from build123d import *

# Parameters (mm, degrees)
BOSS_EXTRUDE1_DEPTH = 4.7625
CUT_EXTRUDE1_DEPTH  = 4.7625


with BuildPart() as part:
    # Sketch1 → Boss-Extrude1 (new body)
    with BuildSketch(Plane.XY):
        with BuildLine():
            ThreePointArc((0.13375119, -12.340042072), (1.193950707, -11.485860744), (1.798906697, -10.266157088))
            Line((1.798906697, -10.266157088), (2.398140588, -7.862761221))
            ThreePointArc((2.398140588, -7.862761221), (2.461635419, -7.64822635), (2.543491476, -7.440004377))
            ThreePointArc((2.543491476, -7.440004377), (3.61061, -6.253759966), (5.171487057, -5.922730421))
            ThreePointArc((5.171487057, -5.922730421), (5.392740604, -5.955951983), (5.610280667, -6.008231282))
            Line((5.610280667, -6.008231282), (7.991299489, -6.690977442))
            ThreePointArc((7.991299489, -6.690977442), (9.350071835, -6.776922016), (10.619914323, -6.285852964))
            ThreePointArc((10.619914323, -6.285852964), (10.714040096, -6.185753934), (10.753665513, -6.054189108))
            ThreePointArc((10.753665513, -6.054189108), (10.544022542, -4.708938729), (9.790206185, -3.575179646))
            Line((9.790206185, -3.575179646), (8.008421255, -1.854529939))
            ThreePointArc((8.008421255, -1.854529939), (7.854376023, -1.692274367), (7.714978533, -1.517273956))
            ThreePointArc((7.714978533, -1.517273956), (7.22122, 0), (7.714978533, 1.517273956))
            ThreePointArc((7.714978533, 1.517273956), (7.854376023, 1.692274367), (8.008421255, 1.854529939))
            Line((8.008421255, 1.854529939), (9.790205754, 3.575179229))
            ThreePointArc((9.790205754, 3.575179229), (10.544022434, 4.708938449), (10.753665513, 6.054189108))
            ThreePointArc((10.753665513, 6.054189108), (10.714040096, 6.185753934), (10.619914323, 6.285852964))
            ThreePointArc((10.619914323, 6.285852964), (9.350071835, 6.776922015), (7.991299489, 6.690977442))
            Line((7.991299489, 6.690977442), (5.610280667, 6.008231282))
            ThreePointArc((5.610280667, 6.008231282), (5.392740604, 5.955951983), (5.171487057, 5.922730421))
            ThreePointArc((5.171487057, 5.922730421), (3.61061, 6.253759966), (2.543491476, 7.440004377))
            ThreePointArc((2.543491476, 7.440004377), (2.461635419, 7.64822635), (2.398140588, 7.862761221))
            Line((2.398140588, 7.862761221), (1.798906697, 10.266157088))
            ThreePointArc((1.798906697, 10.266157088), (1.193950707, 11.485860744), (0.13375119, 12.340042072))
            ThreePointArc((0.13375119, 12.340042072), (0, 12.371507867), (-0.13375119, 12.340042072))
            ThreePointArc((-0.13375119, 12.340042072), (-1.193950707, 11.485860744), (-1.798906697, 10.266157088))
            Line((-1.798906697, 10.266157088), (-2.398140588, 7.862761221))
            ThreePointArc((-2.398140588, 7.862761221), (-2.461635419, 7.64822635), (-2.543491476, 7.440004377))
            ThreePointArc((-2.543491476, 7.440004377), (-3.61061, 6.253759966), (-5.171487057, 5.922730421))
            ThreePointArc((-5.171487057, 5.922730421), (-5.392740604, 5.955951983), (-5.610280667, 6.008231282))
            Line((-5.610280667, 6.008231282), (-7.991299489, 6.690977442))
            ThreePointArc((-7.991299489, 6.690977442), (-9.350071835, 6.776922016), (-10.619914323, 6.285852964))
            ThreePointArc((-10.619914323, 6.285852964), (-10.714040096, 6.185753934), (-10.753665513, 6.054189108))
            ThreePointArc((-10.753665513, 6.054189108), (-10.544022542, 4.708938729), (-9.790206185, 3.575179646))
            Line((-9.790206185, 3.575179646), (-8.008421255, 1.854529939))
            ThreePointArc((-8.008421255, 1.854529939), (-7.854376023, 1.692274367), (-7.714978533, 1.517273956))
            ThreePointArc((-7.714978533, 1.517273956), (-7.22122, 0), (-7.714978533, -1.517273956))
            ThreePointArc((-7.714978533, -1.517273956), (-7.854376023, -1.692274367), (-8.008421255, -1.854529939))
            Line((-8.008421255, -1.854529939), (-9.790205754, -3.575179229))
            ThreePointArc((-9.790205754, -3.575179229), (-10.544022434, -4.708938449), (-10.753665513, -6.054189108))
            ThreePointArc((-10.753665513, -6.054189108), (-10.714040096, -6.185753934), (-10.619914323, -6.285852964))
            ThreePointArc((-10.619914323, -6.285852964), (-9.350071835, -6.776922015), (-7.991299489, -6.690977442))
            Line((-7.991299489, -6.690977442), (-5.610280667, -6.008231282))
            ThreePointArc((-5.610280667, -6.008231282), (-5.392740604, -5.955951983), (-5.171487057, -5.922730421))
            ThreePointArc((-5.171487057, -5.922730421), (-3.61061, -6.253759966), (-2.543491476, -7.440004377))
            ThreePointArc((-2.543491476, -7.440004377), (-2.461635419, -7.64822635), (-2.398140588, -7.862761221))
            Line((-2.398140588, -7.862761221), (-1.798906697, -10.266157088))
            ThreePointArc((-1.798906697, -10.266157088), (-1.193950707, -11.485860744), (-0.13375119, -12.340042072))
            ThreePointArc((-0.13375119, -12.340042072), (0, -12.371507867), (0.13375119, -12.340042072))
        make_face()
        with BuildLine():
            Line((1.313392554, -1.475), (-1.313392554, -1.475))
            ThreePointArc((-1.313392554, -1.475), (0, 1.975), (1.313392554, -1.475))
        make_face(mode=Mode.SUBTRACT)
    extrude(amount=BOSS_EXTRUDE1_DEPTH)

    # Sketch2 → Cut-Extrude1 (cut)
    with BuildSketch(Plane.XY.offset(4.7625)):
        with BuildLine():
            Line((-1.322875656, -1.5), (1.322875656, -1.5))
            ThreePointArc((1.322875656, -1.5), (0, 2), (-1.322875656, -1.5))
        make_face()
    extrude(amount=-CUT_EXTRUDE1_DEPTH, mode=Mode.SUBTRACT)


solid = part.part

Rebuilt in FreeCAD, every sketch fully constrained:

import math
import FreeCAD as App
import Part
import Sketcher
Q = App.Units.Quantity

doc = App.newDocument("Part")
body = doc.addObject("PartDesign::Body", "Body")

# Sketch on XY plane
sketch1 = body.newObject("Sketcher::SketchObject", "Sketch")
sketch1.AttachmentSupport = (doc.getObject("XY_Plane"), [""])
sketch1.MapMode = "FlatFace"
sketch1.addGeometry([
    Part.ArcOfCircle(Part.Circle(App.Vector(-1.28, -9.5, 0), App.Vector(0, 0, 1), 3.18), math.radians(-64), math.radians(-14)),  # 0
    Part.LineSegment(App.Vector(1.8, -10.27, 0), App.Vector(2.4, -7.86, 0)),  # 1
    Part.ArcOfCircle(Part.Circle(App.Vector(4.9, -8.49, 0), App.Vector(0, 0, 1), 2.58), math.radians(156.05), math.radians(166)),  # 2
    Part.ArcOfCircle(Part.Circle(App.Vector(4.9, -8.49, 0), App.Vector(0, 0, 1), 2.58), math.radians(84), math.radians(156)),  # 3
    Part.ArcOfCircle(Part.Circle(App.Vector(4.9, -8.49, 0), App.Vector(0, 0, 1), 2.58), math.radians(74), math.radians(83.95)),  # 4
    Part.LineSegment(App.Vector(5.61, -6.01, 0), App.Vector(7.99, -6.69, 0)),  # 5
    Part.ArcOfCircle(Part.Circle(App.Vector(8.87, -3.64, 0), App.Vector(0, 0, 1), 3.17), math.radians(-106), math.radians(-56)),  # 6
    Part.ArcOfCircle(Part.Circle(App.Vector(10.45, -6.04, 0), App.Vector(0, 0, 1), 0.3), math.radians(-56), math.radians(-4)),  # 7
    Part.ArcOfCircle(Part.Circle(App.Vector(7.58, -5.86, 0), App.Vector(0, 0, 1), 3.18), math.radians(-4), math.radians(46)),  # 8
    Part.LineSegment(App.Vector(9.79, -3.58, 0), App.Vector(8.01, -1.85, 0)),  # 9
    Part.ArcOfCircle(Part.Circle(App.Vector(9.8, 0, 0), App.Vector(0, 0, 1), 2.58), math.radians(-143.95), math.radians(-134)),  # 10
    Part.ArcOfCircle(Part.Circle(App.Vector(9.8, 0, 0), App.Vector(0, 0, 1), 2.58), math.radians(144), math.radians(216)),  # 11
    Part.ArcOfCircle(Part.Circle(App.Vector(9.8, 0, 0), App.Vector(0, 0, 1), 2.58), math.radians(134), math.radians(143.95)),  # 12
    Part.LineSegment(App.Vector(8.01, 1.85, 0), App.Vector(9.79, 3.58, 0)),  # 13
    Part.ArcOfCircle(Part.Circle(App.Vector(7.58, 5.86, 0), App.Vector(0, 0, 1), 3.17), math.radians(-46), math.radians(4)),  # 14
    Part.ArcOfCircle(Part.Circle(App.Vector(10.45, 6.04, 0), App.Vector(0, 0, 1), 0.3), math.radians(4), math.radians(56)),  # 15
    Part.ArcOfCircle(Part.Circle(App.Vector(8.87, 3.64, 0), App.Vector(0, 0, 1), 3.18), math.radians(56), math.radians(106)),  # 16
    Part.LineSegment(App.Vector(7.99, 6.69, 0), App.Vector(5.61, 6.01, 0)),  # 17
    Part.ArcOfCircle(Part.Circle(App.Vector(4.9, 8.49, 0), App.Vector(0, 0, 1), 2.58), math.radians(-83.95), math.radians(-74)),  # 18
    Part.ArcOfCircle(Part.Circle(App.Vector(4.9, 8.49, 0), App.Vector(0, 0, 1), 2.58), math.radians(-156), math.radians(-84)),  # 19
    Part.ArcOfCircle(Part.Circle(App.Vector(4.9, 8.49, 0), App.Vector(0, 0, 1), 2.58), math.radians(-166), math.radians(-156.05)),  # 20
    Part.LineSegment(App.Vector(2.4, 7.86, 0), App.Vector(1.8, 10.27, 0)),  # 21
    Part.ArcOfCircle(Part.Circle(App.Vector(-1.28, 9.5, 0), App.Vector(0, 0, 1), 3.18), math.radians(14), math.radians(64)),  # 22
    Part.ArcOfCircle(Part.Circle(App.Vector(0, 12.07, 0), App.Vector(0, 0, 1), 0.3), math.radians(64), math.radians(116)),  # 23
    Part.ArcOfCircle(Part.Circle(App.Vector(1.28, 9.5, 0), App.Vector(0, 0, 1), 3.18), math.radians(116), math.radians(166)),  # 24
    Part.LineSegment(App.Vector(-1.8, 10.27, 0), App.Vector(-2.4, 7.86, 0)),  # 25
    Part.ArcOfCircle(Part.Circle(App.Vector(-4.9, 8.49, 0), App.Vector(0, 0, 1), 2.58), math.radians(-23.95), math.radians(-14)),  # 26
    Part.ArcOfCircle(Part.Circle(App.Vector(-4.9, 8.49, 0), App.Vector(0, 0, 1), 2.58), math.radians(-96), math.radians(-24)),  # 27
    Part.ArcOfCircle(Part.Circle(App.Vector(-4.9, 8.49, 0), App.Vector(0, 0, 1), 2.58), math.radians(-106), math.radians(-96.05)),  # 28
    Part.LineSegment(App.Vector(-5.61, 6.01, 0), App.Vector(-7.99, 6.69, 0)),  # 29
    Part.ArcOfCircle(Part.Circle(App.Vector(-8.87, 3.64, 0), App.Vector(0, 0, 1), 3.17), math.radians(74), math.radians(124)),  # 30
    Part.ArcOfCircle(Part.Circle(App.Vector(-10.45, 6.04, 0), App.Vector(0, 0, 1), 0.3), math.radians(124), math.radians(176)),  # 31
    Part.ArcOfCircle(Part.Circle(App.Vector(-7.58, 5.86, 0), App.Vector(0, 0, 1), 3.18), math.radians(176), math.radians(226)),  # 32
    Part.LineSegment(App.Vector(-9.79, 3.58, 0), App.Vector(-8.01, 1.85, 0)),  # 33
    Part.ArcOfCircle(Part.Circle(App.Vector(-9.8, 0, 0), App.Vector(0, 0, 1), 2.58), math.radians(36.05), math.radians(46)),  # 34
    Part.ArcOfCircle(Part.Circle(App.Vector(-9.8, 0, 0), App.Vector(0, 0, 1), 2.58), math.radians(-36), math.radians(36)),  # 35
    Part.ArcOfCircle(Part.Circle(App.Vector(-9.8, 0, 0), App.Vector(0, 0, 1), 2.58), math.radians(-46), math.radians(-36.05)),  # 36
    Part.LineSegment(App.Vector(-8.01, -1.85, 0), App.Vector(-9.79, -3.58, 0)),  # 37
    Part.ArcOfCircle(Part.Circle(App.Vector(-7.58, -5.86, 0), App.Vector(0, 0, 1), 3.17), math.radians(134), math.radians(184)),  # 38
    Part.ArcOfCircle(Part.Circle(App.Vector(-10.45, -6.04, 0), App.Vector(0, 0, 1), 0.3), math.radians(-176), math.radians(-124)),  # 39
    Part.ArcOfCircle(Part.Circle(App.Vector(-8.87, -3.64, 0), App.Vector(0, 0, 1), 3.18), math.radians(-124), math.radians(-74)),  # 40
    Part.LineSegment(App.Vector(-7.99, -6.69, 0), App.Vector(-5.61, -6.01, 0)),  # 41
    Part.ArcOfCircle(Part.Circle(App.Vector(-4.9, -8.49, 0), App.Vector(0, 0, 1), 2.58), math.radians(96.05), math.radians(106)),  # 42
    Part.ArcOfCircle(Part.Circle(App.Vector(-4.9, -8.49, 0), App.Vector(0, 0, 1), 2.58), math.radians(24), math.radians(96)),  # 43
    Part.ArcOfCircle(Part.Circle(App.Vector(-4.9, -8.49, 0), App.Vector(0, 0, 1), 2.58), math.radians(14), math.radians(23.95)),  # 44
    Part.LineSegment(App.Vector(-2.4, -7.86, 0), App.Vector(-1.8, -10.27, 0)),  # 45
    Part.ArcOfCircle(Part.Circle(App.Vector(1.28, -9.5, 0), App.Vector(0, 0, 1), 3.18), math.radians(-166), math.radians(-116)),  # 46
    Part.ArcOfCircle(Part.Circle(App.Vector(0, -12.07, 0), App.Vector(0, 0, 1), 0.3), math.radians(-116), math.radians(-64)),  # 47
    Part.ArcOfCircle(Part.Circle(App.Vector(0, 0, 0), App.Vector(0, 0, 1), 1.98), math.radians(-48), math.radians(228)),  # 48
    Part.LineSegment(App.Vector(1.31, -1.48, 0), App.Vector(-1.31, -1.48, 0)),  # 49
], False)
sketch1.addConstraint([
    Sketcher.Constraint("Tangent", 0, 2, 1, 1),
    Sketcher.Constraint("Tangent", 1, 2, 2, 2),
    Sketcher.Constraint("Tangent", 2, 1, 3, 2),
    Sketcher.Constraint("Tangent", 3, 1, 4, 2),
    Sketcher.Constraint("Tangent", 4, 1, 5, 1),
    Sketcher.Constraint("Tangent", 5, 2, 6, 1),
    Sketcher.Constraint("Tangent", 6, 2, 7, 1),
    Sketcher.Constraint("Tangent", 7, 2, 8, 1),
    Sketcher.Constraint("Tangent", 8, 2, 9, 1),
    Sketcher.Constraint("Tangent", 9, 2, 10, 2),
    Sketcher.Constraint("Tangent", 10, 1, 11, 2),
    Sketcher.Constraint("Tangent", 11, 1, 12, 2),
    Sketcher.Constraint("Tangent", 12, 1, 13, 1),
    Sketcher.Constraint("Tangent", 13, 2, 14, 1),
    Sketcher.Constraint("Tangent", 14, 2, 15, 1),
    Sketcher.Constraint("Tangent", 15, 2, 16, 1),
    Sketcher.Constraint("Tangent", 16, 2, 17, 1),
    Sketcher.Constraint("Tangent", 17, 2, 18, 2),
    Sketcher.Constraint("Tangent", 18, 1, 19, 2),
    Sketcher.Constraint("Tangent", 19, 1, 20, 2),
    Sketcher.Constraint("Tangent", 20, 1, 21, 1),
    Sketcher.Constraint("Tangent", 21, 2, 22, 1),
    Sketcher.Constraint("Tangent", 22, 2, 23, 1),
    Sketcher.Constraint("Tangent", 23, 2, 24, 1),
    Sketcher.Constraint("Tangent", 24, 2, 25, 1),
    Sketcher.Constraint("Tangent", 25, 2, 26, 2),
    Sketcher.Constraint("Tangent", 26, 1, 27, 2),
    Sketcher.Constraint("Tangent", 27, 1, 28, 2),
    Sketcher.Constraint("Tangent", 28, 1, 29, 1),
    Sketcher.Constraint("Tangent", 29, 2, 30, 1),
    Sketcher.Constraint("Tangent", 30, 2, 31, 1),
    Sketcher.Constraint("Tangent", 31, 2, 32, 1),
    Sketcher.Constraint("Tangent", 32, 2, 33, 1),
    Sketcher.Constraint("Tangent", 33, 2, 34, 2),
    Sketcher.Constraint("Tangent", 34, 1, 35, 2),
    Sketcher.Constraint("Tangent", 35, 1, 36, 2),
    Sketcher.Constraint("Tangent", 36, 1, 37, 1),
    Sketcher.Constraint("Tangent", 37, 2, 38, 1),
    Sketcher.Constraint("Tangent", 38, 2, 39, 1),
    Sketcher.Constraint("Tangent", 39, 2, 40, 1),
    Sketcher.Constraint("Tangent", 40, 2, 41, 1),
    Sketcher.Constraint("Tangent", 41, 2, 42, 2),
    Sketcher.Constraint("Tangent", 42, 1, 43, 2),
    Sketcher.Constraint("Tangent", 43, 1, 44, 2),
    Sketcher.Constraint("Tangent", 44, 1, 45, 1),
    Sketcher.Constraint("Tangent", 45, 2, 46, 1),
    Sketcher.Constraint("Tangent", 46, 2, 47, 1),
    Sketcher.Constraint("Tangent", 47, 2, 0, 1),
    Sketcher.Constraint("Coincident", 48, 1, 49, 1),
    Sketcher.Constraint("Coincident", 49, 2, 48, 2),
    Sketcher.Constraint("Horizontal", 49),
    Sketcher.Constraint("Coincident", 48, 3, -1, 1),
    Sketcher.Constraint("Coincident", 4, 3, 2, 3),
    Sketcher.Constraint("Coincident", 12, 3, 10, 3),
    Sketcher.Constraint("Coincident", 20, 3, 18, 3),
    Sketcher.Constraint("Coincident", 28, 3, 26, 3),
    Sketcher.Constraint("Coincident", 36, 3, 34, 3),
    Sketcher.Constraint("Coincident", 44, 3, 42, 3),
    Sketcher.Constraint("Equal", 0, 6),
    Sketcher.Constraint("Equal", 6, 8),
    Sketcher.Constraint("Equal", 4, 10),
    Sketcher.Constraint("Equal", 8, 14),
    Sketcher.Constraint("Equal", 7, 15),
    Sketcher.Constraint("Equal", 14, 16),
    Sketcher.Constraint("Equal", 12, 18),
    Sketcher.Constraint("Equal", 16, 22),
    Sketcher.Constraint("Equal", 15, 23),
    Sketcher.Constraint("Equal", 22, 24),
    Sketcher.Constraint("Equal", 20, 26),
    Sketcher.Constraint("Equal", 24, 30),
    Sketcher.Constraint("Equal", 23, 31),
    Sketcher.Constraint("Equal", 30, 32),
    Sketcher.Constraint("Equal", 28, 34),
    Sketcher.Constraint("Equal", 32, 38),
    Sketcher.Constraint("Equal", 31, 39),
    Sketcher.Constraint("Equal", 38, 40),
    Sketcher.Constraint("Equal", 36, 42),
    Sketcher.Constraint("Equal", 40, 46),
    Sketcher.Constraint("Equal", 39, 47),
    Sketcher.Constraint("Symmetric", 0, 3, 24, 3, -1, 1),
    Sketcher.Constraint("Symmetric", 2, 3, 26, 3, -1, 1),
    Sketcher.Constraint("Symmetric", 6, 3, 30, 3, -1, 1),
    Sketcher.Constraint("Symmetric", 8, 3, 32, 3, -1, 1),
    Sketcher.Constraint("Symmetric", 10, 3, 34, 3, -1, 1),
    Sketcher.Constraint("Symmetric", 14, 3, 38, 3, -1, 1),
    Sketcher.Constraint("Symmetric", 16, 3, 40, 3, -1, 1),
    Sketcher.Constraint("Symmetric", 18, 3, 42, 3, -1, 1),
    Sketcher.Constraint("Symmetric", 22, 3, 46, 3, -1, 1),
    Sketcher.Constraint("Symmetric", 22, 3, 24, 3, -2),
    Sketcher.Constraint("Symmetric", 18, 3, 26, 3, -2),
    Sketcher.Constraint("Symmetric", 16, 3, 30, 3, -2),
    Sketcher.Constraint("Symmetric", 14, 3, 32, 3, -2),
    Sketcher.Constraint("Symmetric", 11, 1, 34, 1, -2),
    Sketcher.Constraint("Horizontal", 19, 1, 26, 1),
    Sketcher.Constraint("Horizontal", 18, 1, 27, 1),
    Sketcher.Constraint("Horizontal", 10, 1, 35, 1),
    Sketcher.Constraint("Horizontal", 3, 1, 42, 1),
    Sketcher.Constraint("Horizontal", 2, 1, 43, 1),
    Sketcher.Constraint("Vertical", 10, 1, 11, 1),
    Sketcher.Constraint("Vertical", 3, 1, 18, 1),
    Sketcher.Constraint("Vertical", 2, 1, 19, 1),
    Sketcher.Constraint("Equal", 1, 5),
    Sketcher.Constraint("Equal", 5, 9),
    Sketcher.Constraint("Angle", 1, Q("76 deg")),
    Sketcher.Constraint("Angle", 5, Q("-16 deg")),
    Sketcher.Constraint("Angle", 9, Q("136 deg")),
    Sketcher.Constraint("Radius", 0, Q("0.125 in")),
    Sketcher.Constraint("Radius", 2, Q("0.1015 in")),
    Sketcher.Constraint("Radius", 7, Q("0.3 mm")),
    Sketcher.Constraint("Radius", 48, Q("1.975 mm")),
    Sketcher.Constraint("DistanceX", -1, 1, 2, 3, Q("0.1929 in")),
    Sketcher.Constraint("DistanceX", -1, 1, 10, 3, Q("0.3858 in")),
    Sketcher.Constraint("DistanceX", -1, 1, 5, 2, Q("7.991299 mm")),
    Sketcher.Constraint("DistanceY", 48, 1, -1, 1, Q("1.475 mm")),
    Sketcher.Constraint("DistanceY", 2, 3, -1, 1, Q("8.48646 mm")),
    Sketcher.Constraint("DistanceX", -1, 1, 2, 1, Q("2.543491 mm")),
    Sketcher.Constraint("DistanceY", 3, 1, -1, 1, Q("5.92273 mm")),
    Sketcher.Constraint("DistanceX", -1, 1, 10, 1, Q("7.714979 mm")),
])
pad1 = body.newObject("PartDesign::Pad", "Pad")
pad1.Profile = sketch1
pad1.Length = Q("0.1875 in")

# Sketch on XY plane
sketch2 = body.newObject("Sketcher::SketchObject", "Sketch001")
sketch2.AttachmentSupport = (doc.getObject("XY_Plane"), [""])
sketch2.MapMode = "FlatFace"
sketch2.AttachmentOffset = App.Placement(App.Vector(0, 0, 0.1875 * 25.4), App.Rotation())
sketch2.addGeometry([
    Part.LineSegment(App.Vector(-1.3, -1.5, 0), App.Vector(1.3, -1.5, 0)),
    Part.ArcOfCircle(Part.Circle(App.Vector(0, 0, 0), App.Vector(0, 0, 1), 2), math.radians(-49), math.radians(229)),
], False)
sketch2.addConstraint([
    Sketcher.Constraint("Coincident", 0, 1, 1, 2),
    Sketcher.Constraint("Coincident", 1, 1, 0, 2),
    Sketcher.Constraint("Horizontal", 0),
    Sketcher.Constraint("Coincident", 1, 3, -1, 1),
    Sketcher.Constraint("Radius", 1, Q("2 mm")),
    Sketcher.Constraint("DistanceX", 0, 1, 0, 2, Q("2.645751 mm")),
])
pocket1 = body.newObject("PartDesign::Pocket", "Pocket")
pocket1.Profile = sketch2
pocket1.Length = Q("0.1875 in")

doc.recompute()
